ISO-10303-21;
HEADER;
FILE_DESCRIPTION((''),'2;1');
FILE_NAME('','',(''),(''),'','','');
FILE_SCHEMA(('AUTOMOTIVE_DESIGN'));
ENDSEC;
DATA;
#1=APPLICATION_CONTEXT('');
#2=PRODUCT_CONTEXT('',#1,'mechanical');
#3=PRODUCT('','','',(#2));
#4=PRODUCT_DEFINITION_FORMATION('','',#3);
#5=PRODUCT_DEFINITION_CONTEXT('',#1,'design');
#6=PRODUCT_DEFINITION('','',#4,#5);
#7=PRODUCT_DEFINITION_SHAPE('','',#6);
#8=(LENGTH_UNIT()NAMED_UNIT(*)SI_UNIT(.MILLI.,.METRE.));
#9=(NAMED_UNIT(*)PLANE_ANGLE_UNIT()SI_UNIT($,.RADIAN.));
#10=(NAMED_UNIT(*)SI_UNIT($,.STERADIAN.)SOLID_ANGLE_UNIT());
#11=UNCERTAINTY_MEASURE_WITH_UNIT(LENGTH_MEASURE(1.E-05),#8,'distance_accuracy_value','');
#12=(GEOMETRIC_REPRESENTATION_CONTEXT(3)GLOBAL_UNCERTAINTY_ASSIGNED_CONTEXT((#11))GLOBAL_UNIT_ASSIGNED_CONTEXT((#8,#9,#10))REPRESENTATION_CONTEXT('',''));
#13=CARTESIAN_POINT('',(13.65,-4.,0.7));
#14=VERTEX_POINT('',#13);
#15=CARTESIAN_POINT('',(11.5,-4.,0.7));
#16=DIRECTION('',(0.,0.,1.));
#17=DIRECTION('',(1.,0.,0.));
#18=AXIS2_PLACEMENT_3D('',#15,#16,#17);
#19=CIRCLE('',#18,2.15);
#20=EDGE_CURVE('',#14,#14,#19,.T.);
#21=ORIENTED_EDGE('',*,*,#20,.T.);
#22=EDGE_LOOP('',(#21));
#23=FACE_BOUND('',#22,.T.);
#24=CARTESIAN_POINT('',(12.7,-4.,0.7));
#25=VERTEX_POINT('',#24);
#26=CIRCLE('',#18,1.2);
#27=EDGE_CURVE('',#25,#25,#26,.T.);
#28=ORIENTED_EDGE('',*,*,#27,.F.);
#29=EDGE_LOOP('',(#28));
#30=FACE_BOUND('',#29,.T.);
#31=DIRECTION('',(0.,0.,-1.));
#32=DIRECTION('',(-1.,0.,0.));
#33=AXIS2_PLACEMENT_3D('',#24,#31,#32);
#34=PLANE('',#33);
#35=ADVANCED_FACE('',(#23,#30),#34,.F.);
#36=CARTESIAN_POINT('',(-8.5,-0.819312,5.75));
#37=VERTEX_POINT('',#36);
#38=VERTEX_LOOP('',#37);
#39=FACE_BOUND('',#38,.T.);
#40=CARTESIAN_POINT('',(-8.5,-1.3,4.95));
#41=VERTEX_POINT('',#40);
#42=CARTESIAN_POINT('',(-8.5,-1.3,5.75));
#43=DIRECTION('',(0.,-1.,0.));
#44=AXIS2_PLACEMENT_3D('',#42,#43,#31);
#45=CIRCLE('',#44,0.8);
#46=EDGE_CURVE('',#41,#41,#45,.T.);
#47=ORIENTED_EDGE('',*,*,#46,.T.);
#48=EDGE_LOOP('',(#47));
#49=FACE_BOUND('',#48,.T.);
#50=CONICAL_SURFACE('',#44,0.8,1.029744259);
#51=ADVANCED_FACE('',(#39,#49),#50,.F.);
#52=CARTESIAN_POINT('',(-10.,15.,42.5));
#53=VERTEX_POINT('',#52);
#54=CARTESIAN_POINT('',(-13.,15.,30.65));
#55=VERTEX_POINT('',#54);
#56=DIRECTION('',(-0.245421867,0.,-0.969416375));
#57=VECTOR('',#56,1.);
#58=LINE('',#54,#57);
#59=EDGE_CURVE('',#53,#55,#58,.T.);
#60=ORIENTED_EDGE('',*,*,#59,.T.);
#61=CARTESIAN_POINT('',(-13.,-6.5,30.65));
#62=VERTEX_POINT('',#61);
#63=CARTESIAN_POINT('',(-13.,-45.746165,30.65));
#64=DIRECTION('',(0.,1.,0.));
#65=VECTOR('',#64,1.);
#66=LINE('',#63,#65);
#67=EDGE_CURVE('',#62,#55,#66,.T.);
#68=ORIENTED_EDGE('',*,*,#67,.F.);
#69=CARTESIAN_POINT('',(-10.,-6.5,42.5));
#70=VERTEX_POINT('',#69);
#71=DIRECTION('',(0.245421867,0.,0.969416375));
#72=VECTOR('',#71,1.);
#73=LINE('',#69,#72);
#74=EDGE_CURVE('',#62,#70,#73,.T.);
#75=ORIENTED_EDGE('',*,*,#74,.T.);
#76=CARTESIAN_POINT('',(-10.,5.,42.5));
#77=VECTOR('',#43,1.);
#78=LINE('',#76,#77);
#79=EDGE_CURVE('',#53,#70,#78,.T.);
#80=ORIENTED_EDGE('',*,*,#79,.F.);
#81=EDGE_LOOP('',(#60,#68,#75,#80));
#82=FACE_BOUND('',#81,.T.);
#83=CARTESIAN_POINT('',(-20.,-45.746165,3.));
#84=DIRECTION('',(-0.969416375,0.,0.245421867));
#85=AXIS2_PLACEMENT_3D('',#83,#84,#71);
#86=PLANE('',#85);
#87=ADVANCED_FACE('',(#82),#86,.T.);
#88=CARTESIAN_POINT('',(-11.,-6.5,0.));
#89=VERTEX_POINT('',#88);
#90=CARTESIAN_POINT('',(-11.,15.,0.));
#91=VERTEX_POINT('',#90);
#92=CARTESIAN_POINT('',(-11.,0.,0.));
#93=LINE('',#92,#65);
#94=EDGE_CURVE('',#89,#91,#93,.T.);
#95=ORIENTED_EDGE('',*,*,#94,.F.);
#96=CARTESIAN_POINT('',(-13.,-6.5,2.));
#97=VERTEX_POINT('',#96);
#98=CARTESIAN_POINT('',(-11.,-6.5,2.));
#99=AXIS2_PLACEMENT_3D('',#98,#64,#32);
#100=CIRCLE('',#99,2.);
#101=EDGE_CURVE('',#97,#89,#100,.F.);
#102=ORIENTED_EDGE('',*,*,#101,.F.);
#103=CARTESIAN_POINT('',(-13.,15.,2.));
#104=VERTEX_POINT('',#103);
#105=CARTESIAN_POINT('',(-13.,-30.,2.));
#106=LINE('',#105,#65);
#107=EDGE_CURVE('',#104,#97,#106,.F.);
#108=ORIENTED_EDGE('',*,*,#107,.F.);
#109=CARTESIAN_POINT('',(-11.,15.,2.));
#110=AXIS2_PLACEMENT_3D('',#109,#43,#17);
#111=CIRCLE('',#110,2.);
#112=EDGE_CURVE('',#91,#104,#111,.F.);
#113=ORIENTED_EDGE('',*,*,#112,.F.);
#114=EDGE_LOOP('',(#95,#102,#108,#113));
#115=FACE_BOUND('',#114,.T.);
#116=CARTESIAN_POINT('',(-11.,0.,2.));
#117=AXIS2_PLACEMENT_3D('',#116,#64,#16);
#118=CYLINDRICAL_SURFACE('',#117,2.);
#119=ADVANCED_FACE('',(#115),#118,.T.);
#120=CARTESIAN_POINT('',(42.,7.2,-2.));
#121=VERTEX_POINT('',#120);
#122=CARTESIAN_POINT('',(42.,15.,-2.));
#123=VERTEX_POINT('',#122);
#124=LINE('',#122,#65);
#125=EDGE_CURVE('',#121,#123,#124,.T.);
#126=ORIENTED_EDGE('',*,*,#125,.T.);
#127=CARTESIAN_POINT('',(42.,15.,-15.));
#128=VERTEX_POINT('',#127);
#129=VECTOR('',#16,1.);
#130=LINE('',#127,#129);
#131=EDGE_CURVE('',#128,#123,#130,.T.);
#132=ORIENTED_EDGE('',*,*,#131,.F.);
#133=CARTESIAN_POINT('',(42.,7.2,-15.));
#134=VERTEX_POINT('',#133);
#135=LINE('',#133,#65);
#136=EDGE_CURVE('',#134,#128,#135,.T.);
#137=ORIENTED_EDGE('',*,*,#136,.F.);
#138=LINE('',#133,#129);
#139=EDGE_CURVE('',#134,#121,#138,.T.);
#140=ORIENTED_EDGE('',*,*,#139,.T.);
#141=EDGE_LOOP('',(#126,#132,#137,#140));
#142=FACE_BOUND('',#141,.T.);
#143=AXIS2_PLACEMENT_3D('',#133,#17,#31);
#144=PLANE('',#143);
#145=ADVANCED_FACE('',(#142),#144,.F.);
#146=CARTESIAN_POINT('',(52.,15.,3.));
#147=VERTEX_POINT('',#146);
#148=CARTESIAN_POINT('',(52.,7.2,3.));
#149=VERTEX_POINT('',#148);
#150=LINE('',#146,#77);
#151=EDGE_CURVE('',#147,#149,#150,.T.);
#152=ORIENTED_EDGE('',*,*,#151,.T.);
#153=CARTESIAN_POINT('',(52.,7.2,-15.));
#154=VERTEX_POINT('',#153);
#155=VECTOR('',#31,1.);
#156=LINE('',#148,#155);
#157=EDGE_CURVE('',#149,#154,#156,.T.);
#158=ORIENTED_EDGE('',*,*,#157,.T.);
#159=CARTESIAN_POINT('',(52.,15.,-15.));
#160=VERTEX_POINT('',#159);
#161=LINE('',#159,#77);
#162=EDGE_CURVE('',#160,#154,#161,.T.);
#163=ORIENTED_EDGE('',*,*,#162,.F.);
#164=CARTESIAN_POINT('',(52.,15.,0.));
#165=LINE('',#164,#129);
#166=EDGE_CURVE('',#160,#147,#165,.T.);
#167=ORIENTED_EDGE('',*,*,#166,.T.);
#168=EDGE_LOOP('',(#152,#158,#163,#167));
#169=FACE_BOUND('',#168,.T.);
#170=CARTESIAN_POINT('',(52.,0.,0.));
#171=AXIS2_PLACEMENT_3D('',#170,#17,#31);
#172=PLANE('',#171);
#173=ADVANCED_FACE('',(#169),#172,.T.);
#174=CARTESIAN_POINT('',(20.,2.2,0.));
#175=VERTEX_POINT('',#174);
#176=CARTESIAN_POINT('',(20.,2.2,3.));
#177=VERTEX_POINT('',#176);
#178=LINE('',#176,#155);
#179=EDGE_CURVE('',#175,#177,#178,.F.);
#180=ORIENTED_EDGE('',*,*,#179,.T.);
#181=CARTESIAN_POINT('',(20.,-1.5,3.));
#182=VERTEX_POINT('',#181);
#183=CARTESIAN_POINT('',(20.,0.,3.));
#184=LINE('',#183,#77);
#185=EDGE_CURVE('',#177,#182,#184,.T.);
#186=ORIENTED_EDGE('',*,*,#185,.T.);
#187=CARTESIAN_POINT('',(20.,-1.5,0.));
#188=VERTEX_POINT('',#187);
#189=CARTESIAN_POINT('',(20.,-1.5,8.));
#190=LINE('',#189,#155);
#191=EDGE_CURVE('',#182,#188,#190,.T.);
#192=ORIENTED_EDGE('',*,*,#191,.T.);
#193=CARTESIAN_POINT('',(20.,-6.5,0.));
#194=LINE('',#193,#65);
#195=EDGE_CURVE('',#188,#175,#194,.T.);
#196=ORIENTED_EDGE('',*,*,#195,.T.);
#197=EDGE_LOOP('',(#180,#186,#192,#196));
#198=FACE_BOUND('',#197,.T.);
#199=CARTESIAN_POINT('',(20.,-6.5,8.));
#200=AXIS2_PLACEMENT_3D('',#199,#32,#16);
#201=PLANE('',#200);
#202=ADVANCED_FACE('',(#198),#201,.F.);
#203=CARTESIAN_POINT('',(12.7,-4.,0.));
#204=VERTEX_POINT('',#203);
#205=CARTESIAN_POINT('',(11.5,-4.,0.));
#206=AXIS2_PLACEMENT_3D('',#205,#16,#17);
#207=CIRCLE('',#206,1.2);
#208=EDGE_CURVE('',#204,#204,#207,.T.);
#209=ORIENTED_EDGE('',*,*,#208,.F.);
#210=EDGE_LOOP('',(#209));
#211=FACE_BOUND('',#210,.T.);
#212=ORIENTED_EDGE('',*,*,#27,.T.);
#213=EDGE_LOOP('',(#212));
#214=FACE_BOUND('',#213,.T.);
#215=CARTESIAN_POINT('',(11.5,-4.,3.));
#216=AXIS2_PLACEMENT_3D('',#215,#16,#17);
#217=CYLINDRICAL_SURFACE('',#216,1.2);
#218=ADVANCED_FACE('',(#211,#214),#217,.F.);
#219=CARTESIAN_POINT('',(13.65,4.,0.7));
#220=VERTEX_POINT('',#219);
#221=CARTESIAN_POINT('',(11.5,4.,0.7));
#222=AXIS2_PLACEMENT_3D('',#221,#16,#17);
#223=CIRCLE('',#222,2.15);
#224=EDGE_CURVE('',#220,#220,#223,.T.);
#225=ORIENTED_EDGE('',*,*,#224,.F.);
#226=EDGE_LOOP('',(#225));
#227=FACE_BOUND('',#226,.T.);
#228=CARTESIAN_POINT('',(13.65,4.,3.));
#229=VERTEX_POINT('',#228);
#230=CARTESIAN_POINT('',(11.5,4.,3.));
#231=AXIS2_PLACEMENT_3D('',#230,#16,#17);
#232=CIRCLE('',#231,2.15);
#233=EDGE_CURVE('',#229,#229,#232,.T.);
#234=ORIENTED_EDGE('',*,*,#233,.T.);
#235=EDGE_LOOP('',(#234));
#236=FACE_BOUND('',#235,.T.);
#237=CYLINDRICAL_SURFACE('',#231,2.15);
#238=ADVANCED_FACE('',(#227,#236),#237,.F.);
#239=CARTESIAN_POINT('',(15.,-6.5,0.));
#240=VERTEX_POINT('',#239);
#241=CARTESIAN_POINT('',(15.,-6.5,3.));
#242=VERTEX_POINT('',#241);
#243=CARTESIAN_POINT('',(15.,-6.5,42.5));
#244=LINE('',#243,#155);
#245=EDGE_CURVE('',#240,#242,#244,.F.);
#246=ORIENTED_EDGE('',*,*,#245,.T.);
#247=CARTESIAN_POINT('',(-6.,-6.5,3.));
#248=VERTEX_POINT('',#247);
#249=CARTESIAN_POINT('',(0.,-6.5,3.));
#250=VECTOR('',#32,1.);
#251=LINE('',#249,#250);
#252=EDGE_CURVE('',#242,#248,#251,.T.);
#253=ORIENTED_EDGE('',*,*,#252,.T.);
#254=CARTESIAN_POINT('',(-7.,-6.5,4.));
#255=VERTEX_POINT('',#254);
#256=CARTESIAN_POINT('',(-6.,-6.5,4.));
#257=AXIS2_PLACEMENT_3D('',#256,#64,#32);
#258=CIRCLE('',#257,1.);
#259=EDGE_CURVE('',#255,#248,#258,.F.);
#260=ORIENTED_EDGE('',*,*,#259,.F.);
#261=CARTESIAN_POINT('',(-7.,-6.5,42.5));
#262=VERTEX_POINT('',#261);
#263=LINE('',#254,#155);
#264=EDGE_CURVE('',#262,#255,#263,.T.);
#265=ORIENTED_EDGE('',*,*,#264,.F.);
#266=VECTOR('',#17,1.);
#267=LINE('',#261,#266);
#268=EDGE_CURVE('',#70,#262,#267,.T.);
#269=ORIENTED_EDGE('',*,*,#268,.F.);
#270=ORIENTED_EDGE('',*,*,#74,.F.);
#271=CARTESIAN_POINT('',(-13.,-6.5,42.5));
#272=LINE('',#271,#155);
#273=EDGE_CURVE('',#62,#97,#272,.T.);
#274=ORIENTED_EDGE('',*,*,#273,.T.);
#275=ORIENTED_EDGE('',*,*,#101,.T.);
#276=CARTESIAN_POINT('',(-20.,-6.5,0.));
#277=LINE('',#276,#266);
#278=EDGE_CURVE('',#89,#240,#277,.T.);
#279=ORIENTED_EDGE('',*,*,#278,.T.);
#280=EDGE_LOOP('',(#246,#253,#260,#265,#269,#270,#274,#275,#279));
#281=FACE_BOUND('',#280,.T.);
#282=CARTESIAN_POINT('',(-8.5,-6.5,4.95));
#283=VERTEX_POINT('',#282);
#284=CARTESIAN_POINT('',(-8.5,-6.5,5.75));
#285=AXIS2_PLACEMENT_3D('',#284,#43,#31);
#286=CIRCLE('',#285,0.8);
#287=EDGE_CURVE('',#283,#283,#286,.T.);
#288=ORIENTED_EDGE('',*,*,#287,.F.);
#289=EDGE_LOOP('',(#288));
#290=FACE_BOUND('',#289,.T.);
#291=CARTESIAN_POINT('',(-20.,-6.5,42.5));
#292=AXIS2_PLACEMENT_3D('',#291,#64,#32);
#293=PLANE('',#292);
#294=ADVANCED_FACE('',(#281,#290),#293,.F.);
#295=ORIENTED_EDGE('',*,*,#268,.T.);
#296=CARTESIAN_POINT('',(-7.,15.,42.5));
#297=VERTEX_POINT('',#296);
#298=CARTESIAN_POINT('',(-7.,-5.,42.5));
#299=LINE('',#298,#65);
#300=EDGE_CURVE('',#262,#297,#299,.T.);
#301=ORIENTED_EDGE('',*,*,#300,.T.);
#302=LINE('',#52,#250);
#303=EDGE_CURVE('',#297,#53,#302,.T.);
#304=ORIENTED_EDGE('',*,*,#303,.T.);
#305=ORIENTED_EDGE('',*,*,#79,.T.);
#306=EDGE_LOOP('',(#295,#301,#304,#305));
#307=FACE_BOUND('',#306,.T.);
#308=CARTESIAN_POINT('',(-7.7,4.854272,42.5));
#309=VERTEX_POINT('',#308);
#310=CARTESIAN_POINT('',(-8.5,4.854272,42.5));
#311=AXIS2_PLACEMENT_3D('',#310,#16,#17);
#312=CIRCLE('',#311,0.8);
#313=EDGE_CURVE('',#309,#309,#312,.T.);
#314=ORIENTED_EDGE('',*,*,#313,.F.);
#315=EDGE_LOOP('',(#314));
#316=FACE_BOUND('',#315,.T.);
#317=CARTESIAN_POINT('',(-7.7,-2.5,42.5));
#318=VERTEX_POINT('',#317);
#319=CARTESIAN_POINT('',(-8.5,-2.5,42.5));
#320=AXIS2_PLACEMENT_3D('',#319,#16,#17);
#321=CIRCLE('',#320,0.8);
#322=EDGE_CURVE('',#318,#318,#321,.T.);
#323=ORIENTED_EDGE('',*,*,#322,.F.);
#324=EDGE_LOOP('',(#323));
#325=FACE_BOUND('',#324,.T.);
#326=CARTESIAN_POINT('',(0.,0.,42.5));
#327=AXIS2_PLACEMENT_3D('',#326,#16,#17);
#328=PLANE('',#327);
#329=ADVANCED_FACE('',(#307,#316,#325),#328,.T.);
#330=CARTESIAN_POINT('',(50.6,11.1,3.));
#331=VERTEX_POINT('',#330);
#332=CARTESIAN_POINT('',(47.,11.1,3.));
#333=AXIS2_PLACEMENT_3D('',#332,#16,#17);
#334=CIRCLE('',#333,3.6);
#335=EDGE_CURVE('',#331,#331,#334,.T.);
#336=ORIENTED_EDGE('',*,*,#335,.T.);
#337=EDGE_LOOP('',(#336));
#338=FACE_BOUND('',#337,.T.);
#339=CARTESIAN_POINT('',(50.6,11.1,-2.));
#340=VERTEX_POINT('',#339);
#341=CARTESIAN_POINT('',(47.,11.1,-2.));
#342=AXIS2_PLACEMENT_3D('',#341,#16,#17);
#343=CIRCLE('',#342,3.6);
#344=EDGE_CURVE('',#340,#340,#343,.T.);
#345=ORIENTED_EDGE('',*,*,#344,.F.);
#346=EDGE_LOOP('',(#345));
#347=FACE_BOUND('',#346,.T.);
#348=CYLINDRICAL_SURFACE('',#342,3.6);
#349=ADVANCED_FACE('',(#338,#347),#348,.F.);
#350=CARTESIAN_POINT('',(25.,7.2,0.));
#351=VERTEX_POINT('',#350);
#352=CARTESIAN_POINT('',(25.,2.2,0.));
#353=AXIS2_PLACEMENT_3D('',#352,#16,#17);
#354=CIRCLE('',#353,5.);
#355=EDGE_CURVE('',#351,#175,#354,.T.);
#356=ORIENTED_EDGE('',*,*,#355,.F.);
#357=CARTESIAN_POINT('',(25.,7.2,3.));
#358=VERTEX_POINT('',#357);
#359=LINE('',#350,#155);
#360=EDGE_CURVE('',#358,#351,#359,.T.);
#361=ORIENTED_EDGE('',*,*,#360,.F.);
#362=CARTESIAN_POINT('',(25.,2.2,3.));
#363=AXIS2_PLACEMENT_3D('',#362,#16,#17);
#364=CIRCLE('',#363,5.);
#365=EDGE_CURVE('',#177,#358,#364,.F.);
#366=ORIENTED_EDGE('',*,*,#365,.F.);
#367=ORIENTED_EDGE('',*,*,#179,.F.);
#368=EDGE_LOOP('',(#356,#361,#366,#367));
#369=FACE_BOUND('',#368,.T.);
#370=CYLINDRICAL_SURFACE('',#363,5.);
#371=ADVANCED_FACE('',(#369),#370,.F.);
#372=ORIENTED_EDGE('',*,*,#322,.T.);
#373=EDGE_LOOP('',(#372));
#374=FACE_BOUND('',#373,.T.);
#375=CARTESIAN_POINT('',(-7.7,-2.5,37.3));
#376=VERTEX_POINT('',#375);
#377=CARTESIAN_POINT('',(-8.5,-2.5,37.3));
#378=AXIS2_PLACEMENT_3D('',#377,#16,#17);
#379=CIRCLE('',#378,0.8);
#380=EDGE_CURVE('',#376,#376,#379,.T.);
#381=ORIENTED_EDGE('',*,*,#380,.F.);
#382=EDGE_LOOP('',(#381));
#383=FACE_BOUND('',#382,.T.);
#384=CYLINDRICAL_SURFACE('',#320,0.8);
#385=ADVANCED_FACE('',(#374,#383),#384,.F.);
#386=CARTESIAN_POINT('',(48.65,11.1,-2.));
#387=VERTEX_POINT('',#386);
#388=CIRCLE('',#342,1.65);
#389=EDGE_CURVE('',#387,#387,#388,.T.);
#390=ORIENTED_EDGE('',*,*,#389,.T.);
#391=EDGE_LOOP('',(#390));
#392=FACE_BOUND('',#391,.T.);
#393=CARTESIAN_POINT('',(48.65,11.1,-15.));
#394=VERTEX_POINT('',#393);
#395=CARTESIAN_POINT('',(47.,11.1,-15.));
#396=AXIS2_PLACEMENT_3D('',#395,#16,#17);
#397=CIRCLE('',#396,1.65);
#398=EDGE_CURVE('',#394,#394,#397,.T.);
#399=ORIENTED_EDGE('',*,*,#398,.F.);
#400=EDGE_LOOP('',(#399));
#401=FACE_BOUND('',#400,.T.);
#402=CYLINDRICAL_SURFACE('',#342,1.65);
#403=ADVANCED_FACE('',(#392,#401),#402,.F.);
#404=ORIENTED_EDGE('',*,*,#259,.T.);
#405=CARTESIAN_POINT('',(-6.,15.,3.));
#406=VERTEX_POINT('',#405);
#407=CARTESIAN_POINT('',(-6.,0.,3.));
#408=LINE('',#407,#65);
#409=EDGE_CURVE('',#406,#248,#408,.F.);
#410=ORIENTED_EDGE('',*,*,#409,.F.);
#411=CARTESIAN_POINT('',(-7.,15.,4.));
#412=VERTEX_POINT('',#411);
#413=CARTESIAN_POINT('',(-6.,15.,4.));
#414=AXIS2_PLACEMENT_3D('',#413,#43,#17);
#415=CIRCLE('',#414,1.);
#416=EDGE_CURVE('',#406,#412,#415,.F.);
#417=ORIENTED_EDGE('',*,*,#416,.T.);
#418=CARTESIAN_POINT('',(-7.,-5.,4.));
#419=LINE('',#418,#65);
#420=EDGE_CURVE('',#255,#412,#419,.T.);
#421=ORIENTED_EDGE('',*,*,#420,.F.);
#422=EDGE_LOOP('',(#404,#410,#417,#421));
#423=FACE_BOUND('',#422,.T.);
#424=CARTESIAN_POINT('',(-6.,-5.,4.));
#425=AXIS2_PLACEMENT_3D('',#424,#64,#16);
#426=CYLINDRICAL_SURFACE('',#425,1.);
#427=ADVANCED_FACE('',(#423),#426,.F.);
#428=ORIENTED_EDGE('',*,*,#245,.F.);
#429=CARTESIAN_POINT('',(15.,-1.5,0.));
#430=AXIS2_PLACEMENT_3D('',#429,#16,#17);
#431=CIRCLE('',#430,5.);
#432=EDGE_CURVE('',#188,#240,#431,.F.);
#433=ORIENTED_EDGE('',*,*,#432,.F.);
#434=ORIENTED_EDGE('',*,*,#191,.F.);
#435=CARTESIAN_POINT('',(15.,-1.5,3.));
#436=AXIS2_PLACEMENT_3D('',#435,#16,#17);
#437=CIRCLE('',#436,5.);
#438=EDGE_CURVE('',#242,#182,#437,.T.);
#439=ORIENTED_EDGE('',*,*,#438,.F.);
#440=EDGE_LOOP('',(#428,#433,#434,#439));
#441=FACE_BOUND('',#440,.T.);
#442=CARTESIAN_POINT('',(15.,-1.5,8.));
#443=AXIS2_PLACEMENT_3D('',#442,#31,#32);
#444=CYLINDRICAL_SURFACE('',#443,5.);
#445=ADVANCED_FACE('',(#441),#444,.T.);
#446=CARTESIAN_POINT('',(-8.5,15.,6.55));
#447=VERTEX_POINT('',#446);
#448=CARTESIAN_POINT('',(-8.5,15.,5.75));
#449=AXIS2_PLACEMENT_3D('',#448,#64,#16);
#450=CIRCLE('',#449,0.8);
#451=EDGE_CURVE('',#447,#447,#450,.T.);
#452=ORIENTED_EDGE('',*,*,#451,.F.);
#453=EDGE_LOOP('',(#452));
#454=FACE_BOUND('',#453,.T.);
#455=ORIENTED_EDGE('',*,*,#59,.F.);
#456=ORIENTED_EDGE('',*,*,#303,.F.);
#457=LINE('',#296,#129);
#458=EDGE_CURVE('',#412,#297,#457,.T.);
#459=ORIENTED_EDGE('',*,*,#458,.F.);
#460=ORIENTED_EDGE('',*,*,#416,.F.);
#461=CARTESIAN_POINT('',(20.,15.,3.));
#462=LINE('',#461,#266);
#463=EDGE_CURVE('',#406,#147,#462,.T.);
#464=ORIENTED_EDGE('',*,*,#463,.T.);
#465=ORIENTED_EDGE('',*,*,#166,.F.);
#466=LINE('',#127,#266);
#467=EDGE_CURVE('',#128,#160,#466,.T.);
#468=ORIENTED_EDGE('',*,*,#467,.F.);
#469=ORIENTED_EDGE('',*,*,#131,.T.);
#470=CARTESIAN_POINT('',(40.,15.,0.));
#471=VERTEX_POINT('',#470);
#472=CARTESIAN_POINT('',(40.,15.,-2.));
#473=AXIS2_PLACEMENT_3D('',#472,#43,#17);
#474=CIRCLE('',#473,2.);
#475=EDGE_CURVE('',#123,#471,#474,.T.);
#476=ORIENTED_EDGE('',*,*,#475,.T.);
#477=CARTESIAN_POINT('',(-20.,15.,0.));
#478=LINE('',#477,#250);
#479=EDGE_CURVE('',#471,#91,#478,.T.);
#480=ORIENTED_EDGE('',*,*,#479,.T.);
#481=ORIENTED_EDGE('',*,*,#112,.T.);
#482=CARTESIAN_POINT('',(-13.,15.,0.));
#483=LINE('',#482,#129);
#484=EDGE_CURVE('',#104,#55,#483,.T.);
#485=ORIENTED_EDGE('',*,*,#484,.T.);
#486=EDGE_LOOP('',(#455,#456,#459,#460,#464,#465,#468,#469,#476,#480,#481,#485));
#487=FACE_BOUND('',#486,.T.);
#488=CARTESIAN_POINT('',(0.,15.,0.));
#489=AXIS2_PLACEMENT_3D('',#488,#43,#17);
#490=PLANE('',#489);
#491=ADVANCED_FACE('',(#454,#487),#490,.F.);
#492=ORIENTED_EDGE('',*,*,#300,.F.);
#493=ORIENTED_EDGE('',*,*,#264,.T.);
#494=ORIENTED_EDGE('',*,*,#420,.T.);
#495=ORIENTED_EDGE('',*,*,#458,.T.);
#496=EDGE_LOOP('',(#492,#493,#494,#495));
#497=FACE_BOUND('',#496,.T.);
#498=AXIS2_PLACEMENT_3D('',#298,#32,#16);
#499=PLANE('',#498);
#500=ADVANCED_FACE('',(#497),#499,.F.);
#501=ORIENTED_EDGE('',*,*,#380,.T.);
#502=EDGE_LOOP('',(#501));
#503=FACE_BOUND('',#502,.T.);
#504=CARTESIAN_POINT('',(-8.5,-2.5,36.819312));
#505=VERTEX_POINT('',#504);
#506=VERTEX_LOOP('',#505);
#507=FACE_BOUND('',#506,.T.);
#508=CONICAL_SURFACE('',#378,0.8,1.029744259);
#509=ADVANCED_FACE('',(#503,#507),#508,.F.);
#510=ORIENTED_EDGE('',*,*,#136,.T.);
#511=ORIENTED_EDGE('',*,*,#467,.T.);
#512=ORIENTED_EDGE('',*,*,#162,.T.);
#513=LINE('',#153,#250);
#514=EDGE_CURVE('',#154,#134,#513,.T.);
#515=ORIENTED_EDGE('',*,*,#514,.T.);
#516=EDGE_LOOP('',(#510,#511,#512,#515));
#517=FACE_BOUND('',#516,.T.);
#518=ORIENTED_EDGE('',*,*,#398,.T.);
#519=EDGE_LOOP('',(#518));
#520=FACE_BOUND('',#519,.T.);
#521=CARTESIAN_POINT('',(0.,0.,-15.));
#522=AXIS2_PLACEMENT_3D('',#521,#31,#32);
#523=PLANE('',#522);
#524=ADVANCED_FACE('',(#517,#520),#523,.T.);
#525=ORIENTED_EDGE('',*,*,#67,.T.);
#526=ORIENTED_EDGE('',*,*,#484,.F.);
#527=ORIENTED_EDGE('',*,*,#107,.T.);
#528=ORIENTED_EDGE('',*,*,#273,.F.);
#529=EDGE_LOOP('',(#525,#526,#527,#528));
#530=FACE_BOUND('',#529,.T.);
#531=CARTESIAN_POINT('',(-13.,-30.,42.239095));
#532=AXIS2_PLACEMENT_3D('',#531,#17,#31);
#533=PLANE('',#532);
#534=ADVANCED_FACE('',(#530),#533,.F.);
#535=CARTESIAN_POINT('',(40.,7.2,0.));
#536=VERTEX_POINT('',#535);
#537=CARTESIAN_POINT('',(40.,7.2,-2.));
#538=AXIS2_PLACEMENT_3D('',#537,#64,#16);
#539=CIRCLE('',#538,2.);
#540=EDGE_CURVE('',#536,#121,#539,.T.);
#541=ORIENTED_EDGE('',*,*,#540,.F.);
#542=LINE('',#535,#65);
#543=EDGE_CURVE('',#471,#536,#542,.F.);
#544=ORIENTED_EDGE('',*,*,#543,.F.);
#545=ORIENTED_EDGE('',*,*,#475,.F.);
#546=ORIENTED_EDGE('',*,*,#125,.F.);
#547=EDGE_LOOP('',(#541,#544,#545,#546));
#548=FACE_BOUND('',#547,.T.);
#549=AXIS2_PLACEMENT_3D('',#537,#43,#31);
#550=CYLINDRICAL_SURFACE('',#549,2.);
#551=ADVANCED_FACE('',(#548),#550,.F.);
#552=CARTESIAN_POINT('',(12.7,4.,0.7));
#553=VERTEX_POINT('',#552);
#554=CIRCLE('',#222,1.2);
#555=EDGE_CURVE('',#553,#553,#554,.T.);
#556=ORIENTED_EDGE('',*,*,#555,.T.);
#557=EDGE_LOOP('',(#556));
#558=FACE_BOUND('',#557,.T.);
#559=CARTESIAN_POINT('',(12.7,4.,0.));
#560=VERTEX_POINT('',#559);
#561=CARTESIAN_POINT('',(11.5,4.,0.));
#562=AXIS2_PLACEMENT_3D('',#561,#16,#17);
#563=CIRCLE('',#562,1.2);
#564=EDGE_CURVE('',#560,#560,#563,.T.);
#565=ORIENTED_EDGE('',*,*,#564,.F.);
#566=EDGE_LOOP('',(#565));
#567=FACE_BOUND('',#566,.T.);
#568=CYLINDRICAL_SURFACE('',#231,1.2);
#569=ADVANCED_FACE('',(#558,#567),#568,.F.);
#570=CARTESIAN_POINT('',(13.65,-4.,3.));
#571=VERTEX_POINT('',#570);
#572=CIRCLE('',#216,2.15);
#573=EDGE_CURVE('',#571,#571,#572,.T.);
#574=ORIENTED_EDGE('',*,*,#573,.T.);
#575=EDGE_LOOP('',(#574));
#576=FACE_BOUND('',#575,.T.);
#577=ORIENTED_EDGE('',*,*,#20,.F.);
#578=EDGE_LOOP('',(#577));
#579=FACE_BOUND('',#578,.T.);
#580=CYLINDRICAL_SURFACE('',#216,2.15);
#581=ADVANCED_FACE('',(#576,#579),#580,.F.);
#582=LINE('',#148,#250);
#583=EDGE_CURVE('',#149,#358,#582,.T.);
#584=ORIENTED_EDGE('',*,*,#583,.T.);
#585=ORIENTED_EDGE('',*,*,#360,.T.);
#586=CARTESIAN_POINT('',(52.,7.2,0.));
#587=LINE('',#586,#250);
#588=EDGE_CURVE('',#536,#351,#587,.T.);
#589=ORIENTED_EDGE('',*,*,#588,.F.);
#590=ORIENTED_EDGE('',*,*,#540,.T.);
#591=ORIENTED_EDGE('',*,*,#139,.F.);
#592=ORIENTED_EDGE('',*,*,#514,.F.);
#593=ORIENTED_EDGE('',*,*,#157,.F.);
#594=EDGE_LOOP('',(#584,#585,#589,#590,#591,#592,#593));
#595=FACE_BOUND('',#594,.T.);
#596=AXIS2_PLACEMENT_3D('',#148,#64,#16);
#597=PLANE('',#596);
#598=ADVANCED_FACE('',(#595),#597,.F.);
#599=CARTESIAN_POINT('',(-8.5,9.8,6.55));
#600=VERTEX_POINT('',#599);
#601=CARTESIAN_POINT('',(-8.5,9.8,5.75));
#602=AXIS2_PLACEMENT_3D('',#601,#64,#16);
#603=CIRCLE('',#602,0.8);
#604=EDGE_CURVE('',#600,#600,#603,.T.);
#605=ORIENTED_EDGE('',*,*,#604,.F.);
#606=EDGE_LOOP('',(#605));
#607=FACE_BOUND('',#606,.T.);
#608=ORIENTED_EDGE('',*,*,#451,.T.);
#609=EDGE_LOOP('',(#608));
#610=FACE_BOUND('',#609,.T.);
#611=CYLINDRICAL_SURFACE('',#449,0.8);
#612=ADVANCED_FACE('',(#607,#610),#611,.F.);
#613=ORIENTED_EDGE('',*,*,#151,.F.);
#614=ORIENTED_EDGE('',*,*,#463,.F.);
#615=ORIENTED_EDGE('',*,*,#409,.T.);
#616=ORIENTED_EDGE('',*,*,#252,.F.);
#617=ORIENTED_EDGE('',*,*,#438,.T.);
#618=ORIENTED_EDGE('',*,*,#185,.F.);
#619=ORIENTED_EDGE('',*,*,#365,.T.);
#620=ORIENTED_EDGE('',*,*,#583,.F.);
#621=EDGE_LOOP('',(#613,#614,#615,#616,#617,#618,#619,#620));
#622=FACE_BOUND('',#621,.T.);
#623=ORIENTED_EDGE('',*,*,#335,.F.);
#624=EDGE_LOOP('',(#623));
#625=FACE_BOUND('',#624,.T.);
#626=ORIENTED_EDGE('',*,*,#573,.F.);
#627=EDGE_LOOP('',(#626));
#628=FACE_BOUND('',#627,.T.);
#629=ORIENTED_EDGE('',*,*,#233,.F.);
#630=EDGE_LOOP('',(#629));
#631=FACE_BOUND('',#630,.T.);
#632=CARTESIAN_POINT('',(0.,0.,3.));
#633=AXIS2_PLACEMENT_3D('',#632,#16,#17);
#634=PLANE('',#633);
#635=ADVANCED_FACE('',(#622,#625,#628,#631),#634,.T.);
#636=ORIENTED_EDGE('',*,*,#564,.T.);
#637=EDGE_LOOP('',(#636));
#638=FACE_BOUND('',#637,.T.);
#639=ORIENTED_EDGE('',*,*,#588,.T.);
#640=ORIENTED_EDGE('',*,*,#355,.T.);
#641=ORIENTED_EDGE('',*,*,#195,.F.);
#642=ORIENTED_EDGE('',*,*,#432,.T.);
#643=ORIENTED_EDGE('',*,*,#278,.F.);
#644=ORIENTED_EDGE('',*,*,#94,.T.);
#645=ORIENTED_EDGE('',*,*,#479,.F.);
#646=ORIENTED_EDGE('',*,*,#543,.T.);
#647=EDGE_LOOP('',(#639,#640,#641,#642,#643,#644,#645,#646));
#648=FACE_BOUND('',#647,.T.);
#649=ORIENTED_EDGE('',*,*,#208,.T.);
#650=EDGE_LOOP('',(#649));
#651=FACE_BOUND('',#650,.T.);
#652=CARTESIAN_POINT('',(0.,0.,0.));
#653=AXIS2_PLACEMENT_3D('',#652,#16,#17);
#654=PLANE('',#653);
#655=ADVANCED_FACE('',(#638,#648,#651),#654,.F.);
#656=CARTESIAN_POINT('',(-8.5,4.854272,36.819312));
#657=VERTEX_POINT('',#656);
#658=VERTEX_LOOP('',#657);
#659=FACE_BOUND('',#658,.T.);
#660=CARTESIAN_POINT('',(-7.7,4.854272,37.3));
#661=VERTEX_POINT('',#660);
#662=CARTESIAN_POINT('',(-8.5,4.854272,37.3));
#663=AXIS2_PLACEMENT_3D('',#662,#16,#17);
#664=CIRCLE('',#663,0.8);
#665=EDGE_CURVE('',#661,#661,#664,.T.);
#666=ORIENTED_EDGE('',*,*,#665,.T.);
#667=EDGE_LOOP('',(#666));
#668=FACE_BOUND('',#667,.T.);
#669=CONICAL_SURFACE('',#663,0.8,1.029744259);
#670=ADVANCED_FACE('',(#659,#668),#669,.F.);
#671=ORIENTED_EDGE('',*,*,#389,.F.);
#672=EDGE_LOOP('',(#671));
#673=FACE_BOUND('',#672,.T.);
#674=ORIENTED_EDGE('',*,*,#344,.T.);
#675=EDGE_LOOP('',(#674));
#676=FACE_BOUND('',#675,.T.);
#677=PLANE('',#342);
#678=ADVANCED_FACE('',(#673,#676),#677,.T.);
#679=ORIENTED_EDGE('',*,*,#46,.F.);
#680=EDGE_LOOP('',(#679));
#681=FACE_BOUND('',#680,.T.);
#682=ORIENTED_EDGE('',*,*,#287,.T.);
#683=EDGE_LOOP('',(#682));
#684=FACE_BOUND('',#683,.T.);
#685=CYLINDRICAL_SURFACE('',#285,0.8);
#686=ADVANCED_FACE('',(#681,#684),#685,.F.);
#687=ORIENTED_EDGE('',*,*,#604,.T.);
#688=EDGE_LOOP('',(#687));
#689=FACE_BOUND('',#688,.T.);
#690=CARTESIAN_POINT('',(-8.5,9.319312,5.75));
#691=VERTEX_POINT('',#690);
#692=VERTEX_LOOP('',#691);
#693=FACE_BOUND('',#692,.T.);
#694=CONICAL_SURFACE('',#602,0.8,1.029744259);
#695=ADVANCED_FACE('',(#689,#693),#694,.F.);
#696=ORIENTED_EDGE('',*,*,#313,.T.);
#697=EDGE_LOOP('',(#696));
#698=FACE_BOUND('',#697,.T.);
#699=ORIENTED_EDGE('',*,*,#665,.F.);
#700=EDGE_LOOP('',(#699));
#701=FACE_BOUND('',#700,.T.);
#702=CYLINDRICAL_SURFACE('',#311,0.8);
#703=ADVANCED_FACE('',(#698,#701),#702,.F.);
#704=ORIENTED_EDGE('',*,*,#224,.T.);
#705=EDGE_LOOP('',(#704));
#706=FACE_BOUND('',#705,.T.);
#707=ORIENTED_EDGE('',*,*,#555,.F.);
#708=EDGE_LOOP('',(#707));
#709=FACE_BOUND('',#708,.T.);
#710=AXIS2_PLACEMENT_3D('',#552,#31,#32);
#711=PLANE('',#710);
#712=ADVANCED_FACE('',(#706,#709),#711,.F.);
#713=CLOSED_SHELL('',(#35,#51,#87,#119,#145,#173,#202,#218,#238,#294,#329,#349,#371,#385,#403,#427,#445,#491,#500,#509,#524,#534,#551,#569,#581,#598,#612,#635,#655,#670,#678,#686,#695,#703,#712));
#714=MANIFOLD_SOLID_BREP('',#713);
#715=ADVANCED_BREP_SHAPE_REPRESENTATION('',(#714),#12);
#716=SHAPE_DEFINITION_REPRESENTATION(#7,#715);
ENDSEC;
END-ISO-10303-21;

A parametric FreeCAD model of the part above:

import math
import FreeCAD as App
import Part
import Sketcher


def edges_at(feature, points):
    """Names of the edges that pass closest to the given points."""
    edges = feature.Shape.Edges
    near = lambda p: min(range(len(edges)), key=lambda i: edges[i].distToShape(Part.Vertex(*p))[0])
    return sorted({f"Edge{near(p) + 1}" for p in points})


def add_polygon(sketch, points):
    """Adds a closed chain of lines whose ends are joined by coincident constraints."""
    first, n = sketch.GeometryCount, len(points)
    for a, b in zip(points, points[1:] + points[:1]):
        sketch.addGeometry(Part.LineSegment(App.Vector(*a, 0), App.Vector(*b, 0)), False)
    for i in range(n):
        sketch.addConstraint(Sketcher.Constraint("Coincident", first + i, 2, first + (i + 1) % n, 1))

doc = App.newDocument("Part")
body = doc.addObject("PartDesign::Body", "Body")

sketch1 = body.newObject("Sketcher::SketchObject", "Sketch")
sketch1.AttachmentSupport = (doc.getObject("XY_Plane"), [""])
sketch1.MapMode = "FlatFace"
add_polygon(sketch1, [(-20, 5), (-20, -5), (20, -5), (20, 5)])
sketch1.addConstraint([
    Sketcher.Constraint("Vertical", 0),
    Sketcher.Constraint("Horizontal", 1),
    Sketcher.Constraint("Vertical", 2),
    Sketcher.Constraint("Horizontal", 3),
    Sketcher.Constraint("Symmetric", 0, 2, 2, 2, -1, 1),
    Sketcher.Constraint("DistanceX", 1, 1, 1, 2, 40.0),
    Sketcher.Constraint("DistanceY", 0, 2, 0, 1, 10.0),
])
pad1 = body.newObject("PartDesign::Pad", "Pad")
pad1.Profile = sketch1
pad1.Length = 3

sketch2 = body.newObject("Sketcher::SketchObject", "Sketch001")
sketch2.AttachmentSupport = (doc.getObject("XY_Plane"), [""])
sketch2.MapMode = "FlatFace"
sketch2.AttachmentOffset = App.Placement(App.Vector(0, 0, 3), App.Rotation())
add_polygon(sketch2, [(-10, 5), (-10, -5), (-7, -5), (-7, 5)])
sketch2.addConstraint([
    Sketcher.Constraint("Vertical", 0),
    Sketcher.Constraint("Horizontal", 1),
    Sketcher.Constraint("Vertical", 2),
    Sketcher.Constraint("Horizontal", 3),
    Sketcher.Constraint("DistanceX", 1, 1, 1, 2, 3.0),
    Sketcher.Constraint("DistanceY", 0, 2, 0, 1, 10.0),
    Sketcher.Constraint("DistanceX", 0, 2, -1, 1, 10.0),
    Sketcher.Constraint("DistanceY", 0, 2, -1, 1, 5.0),
])
pad2 = body.newObject("PartDesign::Pad", "Pad001")
pad2.Profile = sketch2
pad2.Length = 39.5

sketch3 = body.newObject("Sketcher::SketchObject", "Sketch002")
sketch3.AttachmentSupport = (doc.getObject("XZ_Plane"), [""])
sketch3.MapMode = "FlatFace"
sketch3.AttachmentOffset = App.Placement(App.Vector(0, 0, -5), App.Rotation())
add_polygon(sketch3, [(-20, 3), (-10, 42.5), (-10, 30.3), (-16.9, 3)])
sketch3.addConstraint([
    Sketcher.Constraint("Vertical", 1),
    Sketcher.Constraint("Horizontal", 3),
    Sketcher.Constraint("Parallel", 0, 2),
    Sketcher.Constraint("DistanceX", 0, 2, -1, 1, 10.0),
    Sketcher.Constraint("DistanceY", -1, 1, 2, 2, 3.0),
    Sketcher.Constraint("DistanceX", 3, 2, -1, 1, 20.0),
    Sketcher.Constraint("DistanceY", -1, 1, 0, 2, 42.5),
    Sketcher.Constraint("DistanceY", 1, 2, 1, 1, 12.22385),
])
pad3 = body.newObject("PartDesign::Pad", "Pad002")
pad3.Profile = sketch3
pad3.Length = 10
doc.recompute()

fillet = body.newObject("PartDesign::Fillet", "Fillet")
fillet.Base = (pad3, edges_at(pad3, [(-7, 0, 3)]))
fillet.Radius = 1

sketch4 = body.newObject("Sketcher::SketchObject", "Sketch003")
sketch4.AttachmentSupport = (doc.getObject("XZ_Plane"), [""])
sketch4.MapMode = "FlatFace"
sketch4.AttachmentOffset = App.Placement(App.Vector(0, 0, -5), App.Rotation())
add_polygon(sketch4, [(-20, 0), (-20, 3), (20, 3), (20, 0)])
sketch4.addConstraint([
    Sketcher.Constraint("Vertical", 0),
    Sketcher.Constraint("Horizontal", 1),
    Sketcher.Constraint("Vertical", 2),
    Sketcher.Constraint("Horizontal", 3),
    Sketcher.Constraint("Symmetric", 2, 2, 3, 2, -1, 1),
    Sketcher.Constraint("DistanceX", 1, 1, 1, 2, 40.0),
    Sketcher.Constraint("DistanceY", 0, 1, 0, 2, 3.0),
])
pad4 = body.newObject("PartDesign::Pad", "Pad003")
pad4.Profile = sketch4
pad4.Length = 10
pad4.Reversed = True
doc.recompute()

mirrored = body.newObject("PartDesign::Mirrored", "Mirrored")
mirrored.Originals = [pad4]
mirrored.MirrorPlane = (doc.getObject("XZ_Plane"), [""])
body.Tip = mirrored

sketch5 = body.newObject("Sketcher::SketchObject", "Sketch004")
sketch5.AttachmentSupport = (doc.getObject("XY_Plane"), [""])
sketch5.MapMode = "FlatFace"
sketch5.AttachmentOffset = App.Placement(App.Vector(0, 0, 3), App.Rotation())
sketch5.addGeometry([
    Part.Circle(App.Vector(11.5, 4, 0), App.Vector(0, 0, 1), 1.2),
    Part.Circle(App.Vector(11.5, -4, 0), App.Vector(0, 0, 1), 1.2),
], False)
sketch5.addConstraint([
    Sketcher.Constraint("Equal", 0, 1),
    Sketcher.Constraint("Symmetric", 0, 3, 1, 3, -1),
    Sketcher.Constraint("Diameter", 0, 2.4),
    Sketcher.Constraint("DistanceY", -1, 1, 0, 3, 4.0),
    Sketcher.Constraint("DistanceX", -1, 1, 0, 3, 11.5),
])
doc.recompute()
hole = body.newObject("PartDesign::Hole", "Hole")
hole.Profile = sketch5
hole.ThreadType = "None"
hole.Diameter = 2.4
hole.DepthType = "Dimension"
hole.Depth = 3.2
hole.DrillPoint = "Angled"
hole.DrillPointAngle = 118
hole.HoleCutType = "Counterbore"
hole.HoleCutDiameter = 4.3
hole.HoleCutDepth = 2.3

sketch6 = body.newObject("Sketcher::SketchObject", "Sketch005")
sketch6.AttachmentSupport = (doc.getObject("XY_Plane"), [""])
sketch6.MapMode = "FlatFace"
sketch6.AttachmentOffset = App.Placement(App.Vector(0, 0, 42.5), App.Rotation())
sketch6.addGeometry(Part.Circle(App.Vector(-8.5, -2.5, 0), App.Vector(0, 0, 1), 0.8), False)
sketch6.addConstraint([
    Sketcher.Constraint("Diameter", 0, 1.6),
    Sketcher.Constraint("DistanceX", 0, 3, -1, 1, 8.5),
    Sketcher.Constraint("DistanceY", 0, 3, -1, 1, 2.5),
])
doc.recompute()
hole2 = body.newObject("PartDesign::Hole", "Hole001")
hole2.Profile = sketch6
hole2.ThreadType = "None"
hole2.Diameter = 1.6
hole2.DepthType = "Dimension"
hole2.Depth = 5.2
hole2.DrillPoint = "Angled"
hole2.DrillPointAngle = 118

sketch7 = body.newObject("Sketcher::SketchObject", "Sketch006")
sketch7.AttachmentSupport = (doc.getObject("XY_Plane"), [""])
sketch7.MapMode = "FlatFace"
add_polygon(sketch7, [(20, -6), (20, -15), (-20, -15), (-20, -6)])
sketch7.addConstraint([
    Sketcher.Constraint("Vertical", 0),
    Sketcher.Constraint("Horizontal", 1),
    Sketcher.Constraint("Vertical", 2),
    Sketcher.Constraint("Horizontal", 3),
    Sketcher.Constraint("DistanceX", 1, 2, 1, 1, 40.0),
    Sketcher.Constraint("DistanceY", 0, 2, 0, 1, 8.5),
    Sketcher.Constraint("DistanceX", -1, 1, 0, 2, 20.0),
    Sketcher.Constraint("DistanceY", 0, 2, -1, 1, 15.0),
])
pocket1 = body.newObject("PartDesign::Pocket", "Pocket")
pocket1.Profile = sketch7
pocket1.Type = "ThroughAll"
pocket1.Reversed = True

sketch8 = body.newObject("Sketcher::SketchObject", "Sketch007")
sketch8.AttachmentSupport = (doc.getObject("YZ_Plane"), [""])
sketch8.MapMode = "FlatFace"
sketch8.AttachmentOffset = App.Placement(App.Vector(0, 0, 20), App.Rotation())
add_polygon(sketch8, [(15, 3), (-6.5, 3), (-6.5, 0), (15, 0)])
sketch8.addConstraint([
    Sketcher.Constraint("Horizontal", 0),
    Sketcher.Constraint("Vertical", 1),
    Sketcher.Constraint("Horizontal", 2),
    Sketcher.Constraint("Vertical", 3),
    Sketcher.Constraint("PointOnObject", 1, 2, -1),
    Sketcher.Constraint("DistanceY", 1, 2, 1, 1, 3.0),
    Sketcher.Constraint("DistanceX", 0, 2, 0, 1, 21.5),
    Sketcher.Constraint("DistanceX", -1, 1, 2, 2, 15.0),
])
pad5 = body.newObject("PartDesign::Pad", "Pad004")
pad5.Profile = sketch8
pad5.Length = 5

sketch9 = body.newObject("Sketcher::SketchObject", "Sketch008")
sketch9.AttachmentSupport = (doc.getObject("YZ_Plane"), [""])
sketch9.MapMode = "FlatFace"
sketch9.AttachmentOffset = App.Placement(App.Vector(0, 0, 25), App.Rotation())
add_polygon(sketch9, [(15, 3), (7.2, 3), (7.2, 0), (15, 0)])
sketch9.addConstraint([
    Sketcher.Constraint("Horizontal", 0),
    Sketcher.Constraint("Vertical", 1),
    Sketcher.Constraint("Horizontal", 2),
    Sketcher.Constraint("Vertical", 3),
    Sketcher.Constraint("PointOnObject", 1, 2, -1),
    Sketcher.Constraint("DistanceY", 1, 2, 1, 1, 3.0),
    Sketcher.Constraint("DistanceX", 0, 2, 0, 1, 7.8),
    Sketcher.Constraint("DistanceX", -1, 1, 2, 2, 15.0),
])
pad6 = body.newObject("PartDesign::Pad", "Pad005")
pad6.Profile = sketch9
pad6.Length = 27

sketch10 = body.newObject("Sketcher::SketchObject", "Sketch009")
sketch10.AttachmentSupport = (doc.getObject("XZ_Plane"), [""])
sketch10.MapMode = "FlatFace"
sketch10.AttachmentOffset = App.Placement(App.Vector(0, 0, -5), App.Rotation())
add_polygon(sketch10, [(-17, 3), (-10, 30), (-10, 3)])
sketch10.addConstraint([
    Sketcher.Constraint("Vertical", 1),
    Sketcher.Constraint("Horizontal", 2),
    Sketcher.Constraint("DistanceX", 0, 2, -1, 1, 10.0),
    Sketcher.Constraint("DistanceY", -1, 1, 1, 2, 3.0),
    Sketcher.Constraint("DistanceY", 1, 2, 1, 1, 27.27615),
    Sketcher.Constraint("Distance", 0, 28.136672),
])
pad7 = body.newObject("PartDesign::Pad", "Pad006")
pad7.Profile = sketch10
pad7.Length = 10

sketch11 = body.newObject("Sketcher::SketchObject", "Sketch010")
sketch11.AttachmentSupport = (doc.getObject("XZ_Plane"), [""])
sketch11.MapMode = "FlatFace"
add_polygon(sketch11, [(-24, -4), (-24, 42), (-13, 42), (-13, -4)])
sketch11.addConstraint([
    Sketcher.Constraint("Vertical", 0),
    Sketcher.Constraint("Horizontal", 1),
    Sketcher.Constraint("Vertical", 2),
    Sketcher.Constraint("Horizontal", 3),
    Sketcher.Constraint("DistanceX", 1, 2, -1, 1, 13.0),
    Sketcher.Constraint("DistanceY", 0, 1, 0, 2, 46.640581),
    Sketcher.Constraint("DistanceX", 1, 1, 1, 2, 10.684105),
    Sketcher.Constraint("DistanceY", -1, 1, 0, 2, 42.239095),
])
pocket2 = body.newObject("PartDesign::Pocket", "Pocket001")
pocket2.Profile = sketch11
pocket2.Length = 60
pocket2.Midplane = True

sketch12 = body.newObject("Sketcher::SketchObject", "Sketch011")
sketch12.AttachmentSupport = (doc.getObject("XY_Plane"), [""])
sketch12.MapMode = "FlatFace"
add_polygon(sketch12, [(52, 15), (52, 7), (42, 7), (42, 15)])
sketch12.addConstraint([
    Sketcher.Constraint("Vertical", 0),
    Sketcher.Constraint("Horizontal", 1),
    Sketcher.Constraint("Vertical", 2),
    Sketcher.Constraint("Horizontal", 3),
    Sketcher.Constraint("DistanceX", 1, 2, 1, 1, 10.0),
    Sketcher.Constraint("DistanceY", 0, 2, 0, 1, 7.8),
    Sketcher.Constraint("DistanceX", -1, 1, 0, 2, 52.0),
    Sketcher.Constraint("DistanceY", -1, 1, 2, 2, 15.0),
])
pad8 = body.newObject("PartDesign::Pad", "Pad007")
pad8.Profile = sketch12
pad8.Length = 15
pad8.Reversed = True

sketch13 = body.newObject("Sketcher::SketchObject", "Sketch012")
sketch13.AttachmentSupport = (doc.getObject("XY_Plane"), [""])
sketch13.MapMode = "FlatFace"
sketch13.AttachmentOffset = App.Placement(App.Vector(0, 0, 3), App.Rotation())
sketch13.addGeometry(Part.Circle(App.Vector(47, 11.1, 0), App.Vector(0, 0, 1), 3.6), False)
sketch13.addConstraint([
    Sketcher.Constraint("Diameter", 0, 7.2),
    Sketcher.Constraint("DistanceX", -1, 1, 0, 3, 47.0),
    Sketcher.Constraint("DistanceY", -1, 1, 0, 3, 11.1),
])
pocket3 = body.newObject("PartDesign::Pocket", "Pocket002")
pocket3.Profile = sketch13
pocket3.Length = 5

sketch14 = body.newObject("Sketcher::SketchObject", "Sketch013")
sketch14.AttachmentSupport = (doc.getObject("XY_Plane"), [""])
sketch14.MapMode = "FlatFace"
sketch14.AttachmentOffset = App.Placement(App.Vector(0, 0, -2), App.Rotation())
sketch14.addGeometry(Part.Circle(App.Vector(47, 11.1, 0), App.Vector(0, 0, 1), 1.6), False)
sketch14.addConstraint([
    Sketcher.Constraint("Diameter", 0, 3.3),
    Sketcher.Constraint("DistanceX", -1, 1, 0, 3, 47.0),
    Sketcher.Constraint("DistanceY", -1, 1, 0, 3, 11.1),
])
doc.recompute()
hole3 = body.newObject("PartDesign::Hole", "Hole002")
hole3.Profile = sketch14
hole3.ThreadType = "None"
hole3.Diameter = 3.3
hole3.DepthType = "ThroughAll"
doc.recompute()

fillet2 = body.newObject("PartDesign::Fillet", "Fillet001")
fillet2.Base = (hole3, edges_at(hole3, [(42, 11.1, 0)]))
fillet2.Radius = 2

sketch15 = body.newObject("Sketcher::SketchObject", "Sketch014")
sketch15.AttachmentSupport = (doc.getObject("XY_Plane"), [""])
sketch15.MapMode = "FlatFace"
add_polygon(sketch15, [(25, 7), (25, -6), (20, -6), (20, 7)])
sketch15.addConstraint([
    Sketcher.Constraint("Vertical", 0),
    Sketcher.Constraint("Horizontal", 1),
    Sketcher.Constraint("Vertical", 2),
    Sketcher.Constraint("Horizontal", 3),
    Sketcher.Constraint("DistanceX", 1, 2, 1, 1, 5.0),
    Sketcher.Constraint("DistanceY", 0, 2, 0, 1, 13.7),
    Sketcher.Constraint("DistanceX", -1, 1, 0, 2, 25.0),
    Sketcher.Constraint("DistanceY", 0, 2, -1, 1, 6.5),
])
pocket4 = body.newObject("PartDesign::Pocket", "Pocket003")
pocket4.Profile = sketch15
pocket4.Length = 8
pocket4.Reversed = True

sketch16 = body.newObject("Sketcher::SketchObject", "Sketch015")
sketch16.AttachmentSupport = (doc.getObject("XZ_Plane"), [""])
sketch16.MapMode = "FlatFace"
sketch16.AttachmentOffset = App.Placement(App.Vector(0, 0, -5), App.Rotation())
sketch16.addGeometry([
    Part.LineSegment(App.Vector(-6, 3, 0), App.Vector(-13, 3, 0)),
    Part.LineSegment(App.Vector(-13, 3, 0), App.Vector(-13, 30.6, 0)),
    Part.LineSegment(App.Vector(-13, 30.6, 0), App.Vector(-10, 42.5, 0)),
    Part.LineSegment(App.Vector(-10, 42.5, 0), App.Vector(-7, 42.5, 0)),
    Part.LineSegment(App.Vector(-7, 42.5, 0), App.Vector(-7, 4, 0)),
    Part.ArcOfCircle(Part.Circle(App.Vector(-6, 4, 0), App.Vector(0, 0, 1), 1), math.radians(-180), math.radians(-90)),
], False)
sketch16.addConstraint([
    Sketcher.Constraint("Coincident", 0, 2, 1, 1),
    Sketcher.Constraint("Coincident", 1, 2, 2, 1),
    Sketcher.Constraint("Coincident", 2, 2, 3, 1),
    Sketcher.Constraint("Coincident", 3, 2, 4, 1),
    Sketcher.Constraint("Tangent", 4, 2, 5, 1),
    Sketcher.Constraint("Tangent", 5, 2, 0, 1),
    Sketcher.Constraint("Horizontal", 0),
    Sketcher.Constraint("Vertical", 1),
    Sketcher.Constraint("Horizontal", 3),
    Sketcher.Constraint("Vertical", 4),
    Sketcher.Constraint("Radius", 5, 1.0),
    Sketcher.Constraint("DistanceX", 0, 2, 0, 1, 7.0),
    Sketcher.Constraint("DistanceX", 3, 1, 3, 2, 3.0),
    Sketcher.Constraint("DistanceY", 4, 2, 4, 1, 38.5),
    Sketcher.Constraint("DistanceX", 5, 3, -1, 1, 6.0),
    Sketcher.Constraint("DistanceY", -1, 1, 5, 3, 4.0),
    Sketcher.Constraint("DistanceY", 1, 1, 1, 2, 27.65),
])
pad9 = body.newObject("PartDesign::Pad", "Pad008")
pad9.Profile = sketch16
pad9.Length = 10
pad9.Reversed = True

sketch17 = body.newObject("Sketcher::SketchObject", "Sketch016")
sketch17.AttachmentSupport = (doc.getObject("XZ_Plane"), [""])
sketch17.MapMode = "FlatFace"
sketch17.AttachmentOffset = App.Placement(App.Vector(0, 0, 5), App.Rotation())
sketch17.addGeometry([
    Part.LineSegment(App.Vector(-10, 42.5, 0), App.Vector(-13, 30.6, 0)),
    Part.LineSegment(App.Vector(-13, 30.6, 0), App.Vector(-13, 3, 0)),
    Part.LineSegment(App.Vector(-13, 3, 0), App.Vector(-6, 3, 0)),
    Part.ArcOfCircle(Part.Circle(App.Vector(-6, 4, 0), App.Vector(0, 0, 1), 1), math.radians(-180), math.radians(-90)),
    Part.LineSegment(App.Vector(-7, 4, 0), App.Vector(-7, 42.5, 0)),
    Part.LineSegment(App.Vector(-7, 42.5, 0), App.Vector(-10, 42.5, 0)),
], False)
sketch17.addConstraint([
    Sketcher.Constraint("Coincident", 0, 2, 1, 1),
    Sketcher.Constraint("Coincident", 1, 2, 2, 1),
    Sketcher.Constraint("Tangent", 2, 2, 3, 2),
    Sketcher.Constraint("Tangent", 3, 1, 4, 1),
    Sketcher.Constraint("Coincident", 4, 2, 5, 1),
    Sketcher.Constraint("Coincident", 5, 2, 0, 1),
    Sketcher.Constraint("Vertical", 1),
    Sketcher.Constraint("Horizontal", 2),
    Sketcher.Constraint("Vertical", 4),
    Sketcher.Constraint("Horizontal", 5),
    Sketcher.Constraint("Radius", 3, 1.0),
    Sketcher.Constraint("DistanceX", 2, 1, 2, 2, 7.0),
    Sketcher.Constraint("DistanceX", 5, 2, 5, 1, 3.0),
    Sketcher.Constraint("DistanceY", 4, 1, 4, 2, 38.5),
    Sketcher.Constraint("DistanceX", 3, 3, -1, 1, 6.0),
    Sketcher.Constraint("DistanceY", -1, 1, 3, 3, 4.0),
    Sketcher.Constraint("DistanceY", 1, 2, 1, 1, 27.65),
])
pad10 = body.newObject("PartDesign::Pad", "Pad009")
pad10.Profile = sketch17
pad10.Length = 1.5

sketch18 = body.newObject("Sketcher::SketchObject", "Sketch017")
sketch18.AttachmentSupport = (doc.getObject("XY_Plane"), [""])
sketch18.MapMode = "FlatFace"
sketch18.AttachmentOffset = App.Placement(App.Vector(0, 0, 42.5), App.Rotation())
sketch18.addGeometry(Part.Circle(App.Vector(-8.5, 4.9, 0), App.Vector(0, 0, 1), 0.8), False)
sketch18.addConstraint([
    Sketcher.Constraint("Diameter", 0, 1.6),
    Sketcher.Constraint("DistanceX", 0, 3, -1, 1, 8.5),
    Sketcher.Constraint("DistanceY", -1, 1, 0, 3, 4.854272),
])
doc.recompute()
hole4 = body.newObject("PartDesign::Hole", "Hole003")
hole4.Profile = sketch18
hole4.ThreadType = "None"
hole4.Diameter = 1.6
hole4.DepthType = "Dimension"
hole4.Depth = 5.2
hole4.DrillPoint = "Angled"
hole4.DrillPointAngle = 118

sketch19 = body.newObject("Sketcher::SketchObject", "Sketch018")
sketch19.AttachmentSupport = (doc.getObject("XZ_Plane"), [""])
sketch19.MapMode = "FlatFace"
sketch19.AttachmentOffset = App.Placement(App.Vector(0, 0, 6.5), App.Rotation())
sketch19.addGeometry(Part.Circle(App.Vector(-8.5, 5.8, 0), App.Vector(0, 0, 1), 0.8), False)
sketch19.addConstraint([
    Sketcher.Constraint("Diameter", 0, 1.6),
    Sketcher.Constraint("DistanceX", 0, 3, -1, 1, 8.5),
    Sketcher.Constraint("DistanceY", -1, 1, 0, 3, 5.75),
])
doc.recompute()
hole5 = body.newObject("PartDesign::Hole", "Hole004")
hole5.Profile = sketch19
hole5.ThreadType = "None"
hole5.Diameter = 1.6
hole5.DepthType = "Dimension"
hole5.Depth = 5.2
hole5.DrillPoint = "Angled"
hole5.DrillPointAngle = 118

sketch20 = body.newObject("Sketcher::SketchObject", "Sketch019")
sketch20.AttachmentSupport = (doc.getObject("XZ_Plane"), [""])
sketch20.MapMode = "FlatFace"
sketch20.AttachmentOffset = App.Placement(App.Vector(0, 0, -15), App.Rotation())
sketch20.addGeometry(Part.Circle(App.Vector(-8.5, 5.8, 0), App.Vector(0, 0, 1), 0.8), False)
sketch20.addConstraint([
    Sketcher.Constraint("Diameter", 0, 1.6),
    Sketcher.Constraint("DistanceX", 0, 3, -1, 1, 8.5),
    Sketcher.Constraint("DistanceY", -1, 1, 0, 3, 5.75),
])
doc.recompute()
hole6 = body.newObject("PartDesign::Hole", "Hole005")
hole6.Profile = sketch20
hole6.ThreadType = "None"
hole6.Diameter = 1.6
hole6.DepthType = "Dimension"
hole6.Depth = 5.2
hole6.DrillPoint = "Angled"
hole6.DrillPointAngle = 118
hole6.Reversed = True
doc.recompute()

fillet3 = body.newObject("PartDesign::Fillet", "Fillet002")
fillet3.Base = (hole6, edges_at(hole6, [(-13, 4.25, 0)]))
fillet3.Radius = 2
doc.recompute()

fillet4 = body.newObject("PartDesign::Fillet", "Fillet003")
fillet4.Base = (fillet3, edges_at(fillet3, [(20, 7.2, 1.5), (20, -6.5, 1.5)]))
fillet4.Radius = 5

doc.recompute()
